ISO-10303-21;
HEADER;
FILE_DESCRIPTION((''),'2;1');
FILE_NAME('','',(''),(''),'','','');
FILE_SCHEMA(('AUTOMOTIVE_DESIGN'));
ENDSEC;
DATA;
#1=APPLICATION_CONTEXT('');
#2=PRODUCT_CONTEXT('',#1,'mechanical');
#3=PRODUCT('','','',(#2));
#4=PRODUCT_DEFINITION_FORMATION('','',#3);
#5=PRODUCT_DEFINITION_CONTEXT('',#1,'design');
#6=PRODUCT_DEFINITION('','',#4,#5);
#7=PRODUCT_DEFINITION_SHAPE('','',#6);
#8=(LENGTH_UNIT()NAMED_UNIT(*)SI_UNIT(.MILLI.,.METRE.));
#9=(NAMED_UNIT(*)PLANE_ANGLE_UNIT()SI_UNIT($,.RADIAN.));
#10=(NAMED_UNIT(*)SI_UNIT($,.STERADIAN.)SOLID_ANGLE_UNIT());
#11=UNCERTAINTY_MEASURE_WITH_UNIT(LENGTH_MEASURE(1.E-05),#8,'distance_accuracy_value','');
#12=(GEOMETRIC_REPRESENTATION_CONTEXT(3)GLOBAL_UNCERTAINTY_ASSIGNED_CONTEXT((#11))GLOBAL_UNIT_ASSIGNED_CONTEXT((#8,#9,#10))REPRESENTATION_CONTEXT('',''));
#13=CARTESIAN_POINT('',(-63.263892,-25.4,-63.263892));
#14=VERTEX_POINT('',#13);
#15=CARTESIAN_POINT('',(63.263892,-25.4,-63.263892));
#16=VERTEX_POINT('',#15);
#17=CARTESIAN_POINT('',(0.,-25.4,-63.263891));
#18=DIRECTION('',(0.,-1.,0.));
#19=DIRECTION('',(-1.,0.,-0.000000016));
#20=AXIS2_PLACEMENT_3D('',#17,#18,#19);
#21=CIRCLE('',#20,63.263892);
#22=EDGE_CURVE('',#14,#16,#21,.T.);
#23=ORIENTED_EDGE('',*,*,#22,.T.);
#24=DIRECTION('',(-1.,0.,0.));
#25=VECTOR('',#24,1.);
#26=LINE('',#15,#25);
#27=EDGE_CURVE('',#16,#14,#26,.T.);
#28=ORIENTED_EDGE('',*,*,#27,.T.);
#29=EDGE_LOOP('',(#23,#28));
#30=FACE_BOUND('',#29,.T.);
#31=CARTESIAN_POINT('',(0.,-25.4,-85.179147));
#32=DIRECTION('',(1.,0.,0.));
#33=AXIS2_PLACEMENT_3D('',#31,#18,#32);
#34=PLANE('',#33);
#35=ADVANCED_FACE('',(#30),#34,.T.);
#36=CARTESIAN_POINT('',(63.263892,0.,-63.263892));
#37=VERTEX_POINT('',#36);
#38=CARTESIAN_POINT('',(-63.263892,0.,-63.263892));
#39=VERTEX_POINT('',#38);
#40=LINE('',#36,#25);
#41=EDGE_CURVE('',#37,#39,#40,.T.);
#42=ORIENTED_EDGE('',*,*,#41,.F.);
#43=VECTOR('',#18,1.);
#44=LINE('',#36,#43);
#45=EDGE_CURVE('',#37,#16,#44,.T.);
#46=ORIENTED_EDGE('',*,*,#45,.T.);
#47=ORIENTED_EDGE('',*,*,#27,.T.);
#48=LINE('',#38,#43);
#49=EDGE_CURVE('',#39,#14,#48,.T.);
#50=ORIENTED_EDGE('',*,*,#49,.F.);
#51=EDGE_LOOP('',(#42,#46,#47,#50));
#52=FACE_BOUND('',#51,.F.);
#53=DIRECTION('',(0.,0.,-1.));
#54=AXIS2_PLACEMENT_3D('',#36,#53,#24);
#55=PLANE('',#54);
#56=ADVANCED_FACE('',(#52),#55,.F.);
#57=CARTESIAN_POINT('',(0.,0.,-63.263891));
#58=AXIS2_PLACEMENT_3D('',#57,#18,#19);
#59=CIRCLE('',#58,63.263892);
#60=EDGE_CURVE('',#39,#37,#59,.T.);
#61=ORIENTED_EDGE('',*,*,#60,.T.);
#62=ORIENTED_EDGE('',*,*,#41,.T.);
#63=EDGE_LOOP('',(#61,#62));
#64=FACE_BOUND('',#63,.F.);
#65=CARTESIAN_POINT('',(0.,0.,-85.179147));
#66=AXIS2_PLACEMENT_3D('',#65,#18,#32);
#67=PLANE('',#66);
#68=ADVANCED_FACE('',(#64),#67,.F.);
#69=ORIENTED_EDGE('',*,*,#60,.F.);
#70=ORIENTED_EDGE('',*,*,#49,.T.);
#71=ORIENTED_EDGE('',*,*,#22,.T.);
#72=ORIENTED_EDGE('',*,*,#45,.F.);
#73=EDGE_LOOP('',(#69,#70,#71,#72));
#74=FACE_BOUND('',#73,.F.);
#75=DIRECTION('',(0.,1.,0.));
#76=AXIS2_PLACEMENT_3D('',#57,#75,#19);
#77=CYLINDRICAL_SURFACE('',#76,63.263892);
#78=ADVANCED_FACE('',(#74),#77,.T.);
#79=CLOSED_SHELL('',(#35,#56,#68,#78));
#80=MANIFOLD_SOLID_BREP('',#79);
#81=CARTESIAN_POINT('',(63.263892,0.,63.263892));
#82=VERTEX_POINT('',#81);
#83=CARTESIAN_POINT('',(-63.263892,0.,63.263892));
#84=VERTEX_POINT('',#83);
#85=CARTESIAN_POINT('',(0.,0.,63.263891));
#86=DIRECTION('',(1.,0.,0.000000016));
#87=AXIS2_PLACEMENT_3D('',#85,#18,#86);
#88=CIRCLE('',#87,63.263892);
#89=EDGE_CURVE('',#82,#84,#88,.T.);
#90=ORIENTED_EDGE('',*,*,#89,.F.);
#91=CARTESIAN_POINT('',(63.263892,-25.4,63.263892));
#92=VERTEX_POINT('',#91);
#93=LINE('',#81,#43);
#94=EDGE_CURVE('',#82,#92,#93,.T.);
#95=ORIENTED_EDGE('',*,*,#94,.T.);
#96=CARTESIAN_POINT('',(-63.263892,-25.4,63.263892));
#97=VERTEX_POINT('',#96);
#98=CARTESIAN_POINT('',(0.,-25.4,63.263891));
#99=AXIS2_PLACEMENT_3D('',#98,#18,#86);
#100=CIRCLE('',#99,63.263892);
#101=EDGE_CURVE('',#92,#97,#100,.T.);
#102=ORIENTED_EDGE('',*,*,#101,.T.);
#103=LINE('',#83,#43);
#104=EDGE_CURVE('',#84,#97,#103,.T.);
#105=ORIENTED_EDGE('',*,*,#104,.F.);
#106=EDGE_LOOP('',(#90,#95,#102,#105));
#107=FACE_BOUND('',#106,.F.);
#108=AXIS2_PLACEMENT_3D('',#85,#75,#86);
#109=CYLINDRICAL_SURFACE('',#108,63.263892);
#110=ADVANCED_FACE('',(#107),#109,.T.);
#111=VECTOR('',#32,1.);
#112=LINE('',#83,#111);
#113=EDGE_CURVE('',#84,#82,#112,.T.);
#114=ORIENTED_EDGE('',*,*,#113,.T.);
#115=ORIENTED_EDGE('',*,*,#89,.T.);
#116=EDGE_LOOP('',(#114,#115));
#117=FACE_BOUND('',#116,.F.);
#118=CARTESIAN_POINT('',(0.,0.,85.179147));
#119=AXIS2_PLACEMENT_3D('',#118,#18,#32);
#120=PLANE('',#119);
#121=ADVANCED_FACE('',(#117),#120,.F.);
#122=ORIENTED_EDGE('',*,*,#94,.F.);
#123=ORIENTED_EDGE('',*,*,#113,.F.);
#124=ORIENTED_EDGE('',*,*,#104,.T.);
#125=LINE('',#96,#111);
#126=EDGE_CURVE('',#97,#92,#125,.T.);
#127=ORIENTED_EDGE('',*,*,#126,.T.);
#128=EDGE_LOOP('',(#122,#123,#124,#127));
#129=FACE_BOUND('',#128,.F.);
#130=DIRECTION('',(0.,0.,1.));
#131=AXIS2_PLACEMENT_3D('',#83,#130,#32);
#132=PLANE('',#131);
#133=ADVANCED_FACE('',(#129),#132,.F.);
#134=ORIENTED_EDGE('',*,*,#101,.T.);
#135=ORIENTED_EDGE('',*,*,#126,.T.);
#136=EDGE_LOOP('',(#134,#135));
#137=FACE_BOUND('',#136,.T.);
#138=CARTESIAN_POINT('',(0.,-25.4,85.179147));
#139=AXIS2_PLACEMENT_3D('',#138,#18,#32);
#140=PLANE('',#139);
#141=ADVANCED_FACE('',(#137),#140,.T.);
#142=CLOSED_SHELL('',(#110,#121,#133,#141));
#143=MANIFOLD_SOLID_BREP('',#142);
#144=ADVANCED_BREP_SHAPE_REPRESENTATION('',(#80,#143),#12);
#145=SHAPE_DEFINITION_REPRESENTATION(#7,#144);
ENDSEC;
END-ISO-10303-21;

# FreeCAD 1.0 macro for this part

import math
import FreeCAD as App
import Part
import Sketcher
from FreeCAD import Vector
Q = App.Units.Quantity

doc = App.newDocument("Part")
body = doc.addObject("PartDesign::Body", "Body")

sketch1 = doc.addObject("Sketcher::SketchObject", "Sketch")
body.addObject(sketch1)
sketch1.AttachmentSupport = (doc.XZ_Plane, [""])
sketch1.MapMode = "FlatFace"
sketch1.addGeometry([
    Part.LineSegment(Vector(-63, 63, 0), Vector(63, 63, 0)),
    Part.ArcOfCircle(Part.Circle(Vector(0, 63, 0), Vector(0, 0, 1), 63), math.radians(0), math.radians(180)),
], False)
sketch1.addConstraint([
    Sketcher.Constraint("Coincident", 0, 1, 1, 2),
    Sketcher.Constraint("Coincident", 1, 1, 0, 2),
    Sketcher.Constraint("Horizontal", 0),
    Sketcher.Constraint("PointOnObject", 1, 3, -2),
    Sketcher.Constraint("Horizontal", 1, 3, 0, 1),
    Sketcher.Constraint("Radius", 1, Q("63.263892 mm")),
    Sketcher.Constraint("DistanceY", -1, 1, 1, 3, Q("63.263891 mm")),
])
pad1 = doc.addObject("PartDesign::Pad", "Pad")
body.addObject(pad1)
pad1.Profile = sketch1
pad1.Length = Q("1 in")
body2 = doc.addObject("PartDesign::Body", "Body001")

sketch2 = doc.addObject("Sketcher::SketchObject", "Sketch001")
body2.addObject(sketch2)
sketch2.AttachmentSupport = (doc.getObject("XZ_Plane001"), [""])
sketch2.MapMode = "FlatFace"
sketch2.addGeometry([
    Part.LineSegment(Vector(63, -63, 0), Vector(-63, -63, 0)),
    Part.ArcOfCircle(Part.Circle(Vector(0, -63, 0), Vector(0, 0, 1), 63), math.radians(-180), math.radians(0)),
], False)
sketch2.addConstraint([
    Sketcher.Constraint("Coincident", 0, 1, 1, 2),
    Sketcher.Constraint("Coincident", 1, 1, 0, 2),
    Sketcher.Constraint("Horizontal", 0),
    Sketcher.Constraint("PointOnObject", 1, 3, -2),
    Sketcher.Constraint("Horizontal", 1, 3, 0, 1),
    Sketcher.Constraint("Radius", 1, Q("63.263892 mm")),
    Sketcher.Constraint("DistanceY", 1, 3, -1, 1, Q("63.263891 mm")),
])
pad2 = doc.addObject("PartDesign::Pad", "Pad001")
body2.addObject(pad2)
pad2.Profile = sketch2
pad2.Length = Q("1 in")

doc.recompute()
